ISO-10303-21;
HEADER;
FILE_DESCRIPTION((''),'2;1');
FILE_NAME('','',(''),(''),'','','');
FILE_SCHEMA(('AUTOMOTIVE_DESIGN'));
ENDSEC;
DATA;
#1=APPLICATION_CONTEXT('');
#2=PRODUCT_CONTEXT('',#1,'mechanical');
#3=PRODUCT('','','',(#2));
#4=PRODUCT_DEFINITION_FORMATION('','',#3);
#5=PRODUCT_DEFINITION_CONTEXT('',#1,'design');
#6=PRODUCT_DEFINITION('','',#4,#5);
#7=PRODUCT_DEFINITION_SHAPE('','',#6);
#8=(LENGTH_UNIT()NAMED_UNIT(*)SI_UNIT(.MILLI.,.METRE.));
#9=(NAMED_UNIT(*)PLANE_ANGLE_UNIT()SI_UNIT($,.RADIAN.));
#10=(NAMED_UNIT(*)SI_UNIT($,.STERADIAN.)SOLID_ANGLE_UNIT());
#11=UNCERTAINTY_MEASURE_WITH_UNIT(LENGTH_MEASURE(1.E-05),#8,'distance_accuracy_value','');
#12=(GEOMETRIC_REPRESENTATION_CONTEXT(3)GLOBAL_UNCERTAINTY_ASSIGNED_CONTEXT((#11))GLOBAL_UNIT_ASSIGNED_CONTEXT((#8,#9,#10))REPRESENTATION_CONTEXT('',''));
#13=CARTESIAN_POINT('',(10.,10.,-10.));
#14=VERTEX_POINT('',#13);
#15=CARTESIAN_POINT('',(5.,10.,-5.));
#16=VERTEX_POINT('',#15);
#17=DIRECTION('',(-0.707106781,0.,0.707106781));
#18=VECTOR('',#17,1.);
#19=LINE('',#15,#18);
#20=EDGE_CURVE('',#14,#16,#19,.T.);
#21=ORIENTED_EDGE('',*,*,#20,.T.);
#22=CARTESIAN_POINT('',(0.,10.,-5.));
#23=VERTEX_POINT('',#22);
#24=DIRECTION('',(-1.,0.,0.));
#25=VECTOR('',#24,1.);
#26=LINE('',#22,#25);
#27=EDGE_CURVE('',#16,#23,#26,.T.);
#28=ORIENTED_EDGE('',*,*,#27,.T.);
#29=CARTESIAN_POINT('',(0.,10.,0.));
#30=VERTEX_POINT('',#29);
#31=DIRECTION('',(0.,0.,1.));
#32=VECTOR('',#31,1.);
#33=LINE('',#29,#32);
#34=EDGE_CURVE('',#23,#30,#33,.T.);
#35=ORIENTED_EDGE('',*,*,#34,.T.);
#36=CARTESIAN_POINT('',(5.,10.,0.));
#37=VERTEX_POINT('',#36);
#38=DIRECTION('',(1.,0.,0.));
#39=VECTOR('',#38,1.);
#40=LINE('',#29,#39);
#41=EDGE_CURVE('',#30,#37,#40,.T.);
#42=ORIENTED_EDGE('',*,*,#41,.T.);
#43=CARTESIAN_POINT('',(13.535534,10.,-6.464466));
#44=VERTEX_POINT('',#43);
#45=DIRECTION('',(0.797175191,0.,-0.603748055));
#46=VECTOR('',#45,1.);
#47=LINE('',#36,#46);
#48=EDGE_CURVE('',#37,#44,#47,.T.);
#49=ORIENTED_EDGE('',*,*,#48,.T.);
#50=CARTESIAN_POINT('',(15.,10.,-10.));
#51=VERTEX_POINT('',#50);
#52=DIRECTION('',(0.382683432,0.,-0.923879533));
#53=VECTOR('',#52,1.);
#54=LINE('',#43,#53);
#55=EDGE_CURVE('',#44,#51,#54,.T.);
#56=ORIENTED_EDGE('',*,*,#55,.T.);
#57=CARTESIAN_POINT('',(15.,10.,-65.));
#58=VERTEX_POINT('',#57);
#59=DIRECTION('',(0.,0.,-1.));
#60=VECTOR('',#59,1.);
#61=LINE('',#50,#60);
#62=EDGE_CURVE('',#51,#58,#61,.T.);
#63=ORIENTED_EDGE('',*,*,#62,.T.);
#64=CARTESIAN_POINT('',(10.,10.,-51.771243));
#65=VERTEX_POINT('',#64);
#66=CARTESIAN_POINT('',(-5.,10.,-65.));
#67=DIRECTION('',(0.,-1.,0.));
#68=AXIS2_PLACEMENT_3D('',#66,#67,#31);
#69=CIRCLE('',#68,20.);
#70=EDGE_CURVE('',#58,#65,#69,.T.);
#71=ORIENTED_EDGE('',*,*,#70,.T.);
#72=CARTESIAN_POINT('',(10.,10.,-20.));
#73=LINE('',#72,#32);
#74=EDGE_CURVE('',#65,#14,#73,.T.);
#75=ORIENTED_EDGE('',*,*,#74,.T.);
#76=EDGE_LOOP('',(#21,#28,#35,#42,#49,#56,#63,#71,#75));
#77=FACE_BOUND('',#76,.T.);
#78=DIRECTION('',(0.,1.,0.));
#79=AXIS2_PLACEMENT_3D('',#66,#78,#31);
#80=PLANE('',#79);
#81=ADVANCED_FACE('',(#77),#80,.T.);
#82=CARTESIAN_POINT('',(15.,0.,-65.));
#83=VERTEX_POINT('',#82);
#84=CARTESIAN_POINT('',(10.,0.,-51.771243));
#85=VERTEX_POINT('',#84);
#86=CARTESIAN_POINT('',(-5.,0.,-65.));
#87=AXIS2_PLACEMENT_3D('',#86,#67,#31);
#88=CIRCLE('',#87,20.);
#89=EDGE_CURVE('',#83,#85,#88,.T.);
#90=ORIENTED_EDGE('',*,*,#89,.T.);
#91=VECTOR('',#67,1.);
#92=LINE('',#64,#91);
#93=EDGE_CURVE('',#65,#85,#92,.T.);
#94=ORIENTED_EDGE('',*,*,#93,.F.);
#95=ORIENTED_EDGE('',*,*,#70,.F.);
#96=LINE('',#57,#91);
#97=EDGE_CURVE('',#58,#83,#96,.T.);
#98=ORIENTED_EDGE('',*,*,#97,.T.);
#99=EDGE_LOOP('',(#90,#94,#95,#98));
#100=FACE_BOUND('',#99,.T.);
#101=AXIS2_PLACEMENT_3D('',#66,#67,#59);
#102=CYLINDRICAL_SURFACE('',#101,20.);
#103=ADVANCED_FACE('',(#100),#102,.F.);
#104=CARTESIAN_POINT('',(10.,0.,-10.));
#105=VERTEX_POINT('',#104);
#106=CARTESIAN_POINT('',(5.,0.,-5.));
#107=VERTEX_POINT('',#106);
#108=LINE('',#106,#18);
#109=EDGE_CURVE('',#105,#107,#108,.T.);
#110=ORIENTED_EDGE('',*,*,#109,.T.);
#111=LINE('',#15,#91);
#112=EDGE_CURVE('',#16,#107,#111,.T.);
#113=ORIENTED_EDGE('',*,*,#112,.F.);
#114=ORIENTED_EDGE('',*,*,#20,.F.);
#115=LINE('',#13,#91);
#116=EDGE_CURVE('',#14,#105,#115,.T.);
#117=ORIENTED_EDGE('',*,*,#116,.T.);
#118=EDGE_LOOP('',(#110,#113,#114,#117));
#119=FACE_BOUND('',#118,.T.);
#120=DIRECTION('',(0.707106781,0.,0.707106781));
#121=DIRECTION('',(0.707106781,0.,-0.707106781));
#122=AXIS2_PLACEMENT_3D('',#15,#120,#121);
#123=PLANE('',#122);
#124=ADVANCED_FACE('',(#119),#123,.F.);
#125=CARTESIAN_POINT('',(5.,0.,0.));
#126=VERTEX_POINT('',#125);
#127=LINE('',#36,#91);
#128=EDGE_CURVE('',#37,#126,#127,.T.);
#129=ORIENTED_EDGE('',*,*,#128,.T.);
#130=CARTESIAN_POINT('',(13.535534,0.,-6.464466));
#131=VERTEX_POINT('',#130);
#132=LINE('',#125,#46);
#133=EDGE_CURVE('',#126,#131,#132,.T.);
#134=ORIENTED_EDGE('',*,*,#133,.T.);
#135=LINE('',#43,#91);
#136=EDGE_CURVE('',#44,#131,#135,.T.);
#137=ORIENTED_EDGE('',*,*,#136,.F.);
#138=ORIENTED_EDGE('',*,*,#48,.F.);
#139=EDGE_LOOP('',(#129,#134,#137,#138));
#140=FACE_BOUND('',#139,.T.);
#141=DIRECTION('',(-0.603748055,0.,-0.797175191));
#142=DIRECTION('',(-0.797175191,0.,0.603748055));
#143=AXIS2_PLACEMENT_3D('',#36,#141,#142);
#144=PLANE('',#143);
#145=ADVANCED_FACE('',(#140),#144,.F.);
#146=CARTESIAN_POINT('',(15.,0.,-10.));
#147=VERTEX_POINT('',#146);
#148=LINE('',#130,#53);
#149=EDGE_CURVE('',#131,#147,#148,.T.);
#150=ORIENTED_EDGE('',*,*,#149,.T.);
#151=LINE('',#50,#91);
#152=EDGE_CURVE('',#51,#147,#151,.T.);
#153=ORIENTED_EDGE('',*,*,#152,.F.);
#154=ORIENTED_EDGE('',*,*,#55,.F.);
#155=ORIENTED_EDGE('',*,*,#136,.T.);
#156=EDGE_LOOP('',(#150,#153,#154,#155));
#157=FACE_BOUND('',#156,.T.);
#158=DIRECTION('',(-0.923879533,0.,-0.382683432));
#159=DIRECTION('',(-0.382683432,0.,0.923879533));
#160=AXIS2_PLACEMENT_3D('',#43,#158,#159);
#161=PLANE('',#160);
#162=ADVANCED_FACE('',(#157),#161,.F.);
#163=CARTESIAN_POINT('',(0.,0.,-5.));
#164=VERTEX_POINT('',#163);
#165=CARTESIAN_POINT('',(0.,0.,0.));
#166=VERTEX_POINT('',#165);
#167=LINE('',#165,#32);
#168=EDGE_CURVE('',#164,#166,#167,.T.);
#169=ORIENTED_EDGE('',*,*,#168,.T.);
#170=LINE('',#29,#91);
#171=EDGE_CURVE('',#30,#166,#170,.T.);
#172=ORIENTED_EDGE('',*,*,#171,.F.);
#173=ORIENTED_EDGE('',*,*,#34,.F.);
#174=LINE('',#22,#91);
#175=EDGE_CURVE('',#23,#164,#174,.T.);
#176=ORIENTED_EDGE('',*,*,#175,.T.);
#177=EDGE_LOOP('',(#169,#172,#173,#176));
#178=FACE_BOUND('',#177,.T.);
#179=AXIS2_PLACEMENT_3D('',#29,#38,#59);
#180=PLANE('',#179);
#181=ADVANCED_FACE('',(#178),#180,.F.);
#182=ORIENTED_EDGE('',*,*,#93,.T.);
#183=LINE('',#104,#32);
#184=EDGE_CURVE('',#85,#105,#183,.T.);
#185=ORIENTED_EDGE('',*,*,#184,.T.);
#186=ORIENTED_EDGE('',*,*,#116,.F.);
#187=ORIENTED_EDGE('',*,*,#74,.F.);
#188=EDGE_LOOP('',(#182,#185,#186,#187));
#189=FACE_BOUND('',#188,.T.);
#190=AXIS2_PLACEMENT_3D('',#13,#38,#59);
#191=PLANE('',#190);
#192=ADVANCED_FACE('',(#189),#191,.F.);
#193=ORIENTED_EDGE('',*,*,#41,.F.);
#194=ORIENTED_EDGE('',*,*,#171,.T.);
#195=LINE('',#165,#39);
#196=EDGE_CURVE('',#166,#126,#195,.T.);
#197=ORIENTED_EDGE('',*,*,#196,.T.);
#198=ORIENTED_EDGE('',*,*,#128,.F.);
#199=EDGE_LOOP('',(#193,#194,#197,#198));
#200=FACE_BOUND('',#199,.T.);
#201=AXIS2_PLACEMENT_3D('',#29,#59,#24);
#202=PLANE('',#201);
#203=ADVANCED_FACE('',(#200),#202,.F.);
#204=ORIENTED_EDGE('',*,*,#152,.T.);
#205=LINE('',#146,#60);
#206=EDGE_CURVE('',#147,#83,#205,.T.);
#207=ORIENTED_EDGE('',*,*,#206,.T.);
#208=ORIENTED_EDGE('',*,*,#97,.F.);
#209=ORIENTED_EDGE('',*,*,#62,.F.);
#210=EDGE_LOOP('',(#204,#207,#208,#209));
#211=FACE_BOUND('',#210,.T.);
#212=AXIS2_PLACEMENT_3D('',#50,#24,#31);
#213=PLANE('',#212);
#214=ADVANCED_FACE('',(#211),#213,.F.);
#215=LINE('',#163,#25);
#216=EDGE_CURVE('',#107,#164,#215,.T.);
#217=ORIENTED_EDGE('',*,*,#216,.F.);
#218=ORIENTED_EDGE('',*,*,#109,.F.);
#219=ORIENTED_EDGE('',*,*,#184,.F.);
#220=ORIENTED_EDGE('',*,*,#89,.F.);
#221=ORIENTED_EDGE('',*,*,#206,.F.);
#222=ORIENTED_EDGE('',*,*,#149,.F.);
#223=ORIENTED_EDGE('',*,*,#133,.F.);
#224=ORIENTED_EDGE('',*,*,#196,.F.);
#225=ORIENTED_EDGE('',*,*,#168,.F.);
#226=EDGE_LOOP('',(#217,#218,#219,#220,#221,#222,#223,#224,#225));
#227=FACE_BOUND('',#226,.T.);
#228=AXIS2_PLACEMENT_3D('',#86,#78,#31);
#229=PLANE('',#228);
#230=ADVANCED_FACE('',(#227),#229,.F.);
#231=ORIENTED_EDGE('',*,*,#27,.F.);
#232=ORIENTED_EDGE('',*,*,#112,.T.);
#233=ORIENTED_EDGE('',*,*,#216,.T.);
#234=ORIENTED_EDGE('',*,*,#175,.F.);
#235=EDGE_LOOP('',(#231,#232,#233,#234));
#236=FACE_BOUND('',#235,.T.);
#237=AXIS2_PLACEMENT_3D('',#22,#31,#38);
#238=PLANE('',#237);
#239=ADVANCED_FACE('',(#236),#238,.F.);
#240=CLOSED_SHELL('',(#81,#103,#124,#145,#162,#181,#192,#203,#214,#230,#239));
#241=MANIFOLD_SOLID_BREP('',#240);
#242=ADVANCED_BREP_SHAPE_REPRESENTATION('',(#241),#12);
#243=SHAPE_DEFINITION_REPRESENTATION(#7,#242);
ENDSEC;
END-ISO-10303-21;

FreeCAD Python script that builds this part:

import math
import FreeCAD as App
import Part
import Sketcher
from FreeCAD import Vector
Q = App.Units.Quantity

doc = App.newDocument("Part")
body = doc.addObject("PartDesign::Body", "Body")

# Sketch on XZ plane
sketch1 = doc.addObject("Sketcher::SketchObject", "Sketch")
body.addObject(sketch1)
sketch1.AttachmentSupport = (doc.XZ_Plane, [""])
sketch1.MapMode = "FlatFace"
sketch1.addGeometry([
    Part.LineSegment(Vector(0, 0, 0), Vector(5, 0, 0)),  # 0
    Part.LineSegment(Vector(5, 0, 0), Vector(13.5, -6.5, 0)),  # 1
    Part.LineSegment(Vector(13.5, -6.5, 0), Vector(15, -10, 0)),  # 2
    Part.LineSegment(Vector(15, -10, 0), Vector(15, -65, 0)),  # 3
    Part.ArcOfCircle(Part.Circle(Vector(-5, -65, 0), Vector(0, 0, 1), 20), math.radians(0), math.radians(41)),  # 4
    Part.LineSegment(Vector(10, -51.8, 0), Vector(10, -10, 0)),  # 5
    Part.LineSegment(Vector(10, -10, 0), Vector(5, -5, 0)),  # 6
    Part.LineSegment(Vector(5, -5, 0), Vector(0, -5, 0)),  # 7
    Part.LineSegment(Vector(0, -5, 0), Vector(0, 0, 0)),  # 8
], False)
sketch1.addConstraint([
    Sketcher.Constraint("Coincident", 0, 2, 1, 1),
    Sketcher.Constraint("Coincident", 1, 2, 2, 1),
    Sketcher.Constraint("Coincident", 2, 2, 3, 1),
    Sketcher.Constraint("Tangent", 3, 2, 4, 1),
    Sketcher.Constraint("Coincident", 4, 2, 5, 1),
    Sketcher.Constraint("Coincident", 5, 2, 6, 1),
    Sketcher.Constraint("Coincident", 6, 2, 7, 1),
    Sketcher.Constraint("Coincident", 7, 2, 8, 1),
    Sketcher.Constraint("Coincident", 8, 2, 0, 1),
    Sketcher.Constraint("Horizontal", 0),
    Sketcher.Constraint("Vertical", 3),
    Sketcher.Constraint("Vertical", 5),
    Sketcher.Constraint("Horizontal", 7),
    Sketcher.Constraint("Vertical", 8),
    Sketcher.Constraint("Coincident", 8, 2, -1, 1),
    Sketcher.Constraint("Horizontal", 2, 2, 5, 2),
    Sketcher.Constraint("Vertical", 0, 2, 6, 2),
    Sketcher.Constraint("Equal", 7, 8),
    Sketcher.Constraint("Radius", 4, 20.0),
    Sketcher.Constraint("DistanceX", 0, 1, 0, 2, 5.0),
    Sketcher.Constraint("DistanceY", 3, 2, 3, 1, 55.0),
    Sketcher.Constraint("Angle", 6, Q("135 deg")),
    Sketcher.Constraint("DistanceX", 4, 3, -1, 1, 5.0),
    Sketcher.Constraint("DistanceY", 4, 3, -1, 1, 65.0),
    Sketcher.Constraint("Angle", 2, Q("-67.5 deg")),
    Sketcher.Constraint("Distance", 1, 10.707225),
])
pad1 = doc.addObject("PartDesign::Pad", "Pad")
body.addObject(pad1)
pad1.Profile = sketch1
pad1.Length = 10
pad1.Reversed = True

doc.recompute()
